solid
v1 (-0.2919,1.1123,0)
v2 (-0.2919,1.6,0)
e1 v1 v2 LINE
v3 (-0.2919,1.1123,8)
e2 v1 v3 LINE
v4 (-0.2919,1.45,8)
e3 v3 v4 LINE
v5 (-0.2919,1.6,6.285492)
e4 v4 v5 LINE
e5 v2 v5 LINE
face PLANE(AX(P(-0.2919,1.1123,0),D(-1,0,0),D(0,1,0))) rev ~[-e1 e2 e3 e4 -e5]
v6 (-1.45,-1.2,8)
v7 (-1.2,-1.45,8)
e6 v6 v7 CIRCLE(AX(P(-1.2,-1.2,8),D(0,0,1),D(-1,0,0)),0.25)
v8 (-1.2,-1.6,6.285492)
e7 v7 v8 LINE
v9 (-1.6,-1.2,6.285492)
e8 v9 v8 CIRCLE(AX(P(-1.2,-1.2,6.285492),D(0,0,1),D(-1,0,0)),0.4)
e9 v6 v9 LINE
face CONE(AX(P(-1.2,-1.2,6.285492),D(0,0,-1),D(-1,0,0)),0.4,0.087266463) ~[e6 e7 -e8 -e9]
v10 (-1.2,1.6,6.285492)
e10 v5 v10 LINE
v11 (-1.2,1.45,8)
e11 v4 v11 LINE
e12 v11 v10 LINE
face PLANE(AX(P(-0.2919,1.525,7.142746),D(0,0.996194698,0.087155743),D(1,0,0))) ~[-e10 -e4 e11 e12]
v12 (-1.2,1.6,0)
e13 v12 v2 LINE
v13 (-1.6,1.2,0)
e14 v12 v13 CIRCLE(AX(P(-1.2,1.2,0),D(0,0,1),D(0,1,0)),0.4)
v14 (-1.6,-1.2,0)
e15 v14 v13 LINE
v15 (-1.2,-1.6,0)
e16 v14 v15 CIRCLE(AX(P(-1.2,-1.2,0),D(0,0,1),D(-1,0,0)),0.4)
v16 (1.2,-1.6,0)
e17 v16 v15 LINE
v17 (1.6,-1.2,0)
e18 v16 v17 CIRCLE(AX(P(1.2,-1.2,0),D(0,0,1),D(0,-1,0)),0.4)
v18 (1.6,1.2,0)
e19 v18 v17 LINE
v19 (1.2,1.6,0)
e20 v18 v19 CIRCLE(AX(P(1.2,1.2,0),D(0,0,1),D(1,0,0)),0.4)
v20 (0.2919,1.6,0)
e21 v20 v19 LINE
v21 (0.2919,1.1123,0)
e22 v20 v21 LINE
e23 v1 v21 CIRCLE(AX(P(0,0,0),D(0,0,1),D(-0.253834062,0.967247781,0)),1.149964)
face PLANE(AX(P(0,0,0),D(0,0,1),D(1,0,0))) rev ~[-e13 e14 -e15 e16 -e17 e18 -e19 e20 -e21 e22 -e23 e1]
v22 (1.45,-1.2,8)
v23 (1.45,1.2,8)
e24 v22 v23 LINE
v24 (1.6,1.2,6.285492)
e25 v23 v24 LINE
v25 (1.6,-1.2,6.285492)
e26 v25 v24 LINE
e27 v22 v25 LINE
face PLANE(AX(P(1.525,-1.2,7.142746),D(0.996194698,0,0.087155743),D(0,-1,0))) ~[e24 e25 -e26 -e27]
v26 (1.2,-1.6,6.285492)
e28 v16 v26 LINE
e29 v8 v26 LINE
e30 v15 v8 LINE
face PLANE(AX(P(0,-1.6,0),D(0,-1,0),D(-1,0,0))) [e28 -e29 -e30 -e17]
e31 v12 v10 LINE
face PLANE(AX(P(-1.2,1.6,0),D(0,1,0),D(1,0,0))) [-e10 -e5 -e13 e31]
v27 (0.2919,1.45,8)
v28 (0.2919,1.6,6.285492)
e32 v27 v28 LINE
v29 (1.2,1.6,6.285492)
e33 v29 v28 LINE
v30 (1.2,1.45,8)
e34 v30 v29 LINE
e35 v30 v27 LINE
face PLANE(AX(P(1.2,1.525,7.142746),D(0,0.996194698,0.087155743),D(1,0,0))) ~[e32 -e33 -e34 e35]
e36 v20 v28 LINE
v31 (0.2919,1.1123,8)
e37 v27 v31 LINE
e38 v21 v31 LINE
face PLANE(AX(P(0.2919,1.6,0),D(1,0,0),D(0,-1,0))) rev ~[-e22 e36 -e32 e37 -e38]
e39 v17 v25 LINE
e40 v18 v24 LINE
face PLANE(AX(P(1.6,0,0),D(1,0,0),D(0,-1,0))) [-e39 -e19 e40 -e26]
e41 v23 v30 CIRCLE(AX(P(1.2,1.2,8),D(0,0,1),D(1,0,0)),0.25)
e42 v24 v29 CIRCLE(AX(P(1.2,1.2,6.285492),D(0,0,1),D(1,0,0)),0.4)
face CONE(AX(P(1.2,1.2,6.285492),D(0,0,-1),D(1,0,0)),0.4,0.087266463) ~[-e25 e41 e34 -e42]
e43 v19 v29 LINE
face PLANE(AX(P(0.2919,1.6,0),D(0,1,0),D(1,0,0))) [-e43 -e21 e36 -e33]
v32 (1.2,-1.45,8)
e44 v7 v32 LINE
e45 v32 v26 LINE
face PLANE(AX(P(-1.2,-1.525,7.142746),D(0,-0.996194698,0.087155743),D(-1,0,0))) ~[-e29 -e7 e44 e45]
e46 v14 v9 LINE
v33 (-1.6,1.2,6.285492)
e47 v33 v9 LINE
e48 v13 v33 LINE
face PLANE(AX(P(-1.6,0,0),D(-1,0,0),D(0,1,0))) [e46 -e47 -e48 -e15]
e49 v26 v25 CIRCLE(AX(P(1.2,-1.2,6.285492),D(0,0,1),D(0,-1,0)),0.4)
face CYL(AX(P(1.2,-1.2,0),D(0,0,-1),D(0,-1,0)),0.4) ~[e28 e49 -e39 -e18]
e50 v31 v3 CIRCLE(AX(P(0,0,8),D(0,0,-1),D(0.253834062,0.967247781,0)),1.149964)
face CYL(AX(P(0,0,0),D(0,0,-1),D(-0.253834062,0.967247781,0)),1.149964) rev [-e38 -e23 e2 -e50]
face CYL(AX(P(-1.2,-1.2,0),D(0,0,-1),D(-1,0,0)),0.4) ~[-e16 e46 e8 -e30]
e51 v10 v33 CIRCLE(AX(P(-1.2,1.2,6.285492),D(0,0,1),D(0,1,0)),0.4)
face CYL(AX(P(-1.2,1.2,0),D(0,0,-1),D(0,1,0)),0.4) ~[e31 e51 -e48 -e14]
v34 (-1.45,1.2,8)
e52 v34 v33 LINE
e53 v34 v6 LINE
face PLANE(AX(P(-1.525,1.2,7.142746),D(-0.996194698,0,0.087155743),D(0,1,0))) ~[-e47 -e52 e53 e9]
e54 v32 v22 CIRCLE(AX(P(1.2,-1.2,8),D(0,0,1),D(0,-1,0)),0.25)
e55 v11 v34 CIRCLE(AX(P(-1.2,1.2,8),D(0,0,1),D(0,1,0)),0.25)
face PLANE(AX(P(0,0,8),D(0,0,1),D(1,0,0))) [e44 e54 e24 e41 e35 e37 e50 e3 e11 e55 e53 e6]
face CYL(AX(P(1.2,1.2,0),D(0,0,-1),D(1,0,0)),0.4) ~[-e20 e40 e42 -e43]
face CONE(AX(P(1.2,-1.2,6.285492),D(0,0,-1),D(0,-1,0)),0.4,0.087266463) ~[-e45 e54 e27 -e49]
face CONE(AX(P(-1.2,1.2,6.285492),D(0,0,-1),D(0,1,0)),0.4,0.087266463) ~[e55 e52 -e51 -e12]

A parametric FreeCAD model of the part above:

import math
import FreeCAD as App
import Part
import Sketcher
from FreeCAD import Vector


def edges_at(feature, points):
    """Names of the edges that pass closest to the given points."""
    edges = feature.Shape.Edges
    near = lambda p: min(range(len(edges)), key=lambda i: edges[i].distToShape(Part.Vertex(*p))[0])
    return sorted({f"Edge{near(p) + 1}" for p in points})

doc = App.newDocument("Part")
params = doc.addObject("Spreadsheet::Sheet", "Params")
for row, (alias, value) in enumerate([
    ("sketch1_radius", "0.4 mm"),
    ("sketch1_radius2", "1.15 mm"),
    ("pad1_length", "8 mm"),
    ("chamfer_size", "0.15 mm"),
], start=1):
    params.set(f"A{row}", alias)
    params.set(f"B{row}", "=" + value)
    params.setAlias(f"B{row}", alias)

body = doc.addObject("PartDesign::Body", "Body")

# Sketch on XY plane
sketch1 = doc.addObject("Sketcher::SketchObject", "Sketch")
body.addObject(sketch1)
sketch1.AttachmentSupport = (doc.XY_Plane, [""])
sketch1.MapMode = "FlatFace"
sketch1.addGeometry([
    Part.LineSegment(Vector(-0.29, 1.6, 0), Vector(-1.2, 1.6, 0)),  # 0
    Part.ArcOfCircle(Part.Circle(Vector(-1.2, 1.2, 0), Vector(0, 0, 1), 0.4), math.radians(90), math.radians(180)),  # 1
    Part.LineSegment(Vector(-1.6, 1.2, 0), Vector(-1.6, -1.2, 0)),  # 2
    Part.ArcOfCircle(Part.Circle(Vector(-1.2, -1.2, 0), Vector(0, 0, 1), 0.4), math.radians(180), math.radians(270)),  # 3
    Part.LineSegment(Vector(-1.2, -1.6, 0), Vector(1.2, -1.6, 0)),  # 4
    Part.ArcOfCircle(Part.Circle(Vector(1.2, -1.2, 0), Vector(0, 0, 1), 0.4), math.radians(-90), math.radians(0)),  # 5
    Part.LineSegment(Vector(1.6, -1.2, 0), Vector(1.6, 1.2, 0)),  # 6
    Part.ArcOfCircle(Part.Circle(Vector(1.2, 1.2, 0), Vector(0, 0, 1), 0.4), math.radians(0), math.radians(90)),  # 7
    Part.LineSegment(Vector(1.2, 1.6, 0), Vector(0.29, 1.6, 0)),  # 8
    Part.LineSegment(Vector(0.29, 1.6, 0), Vector(0.29, 1.11, 0)),  # 9
    Part.ArcOfCircle(Part.Circle(Vector(0, 0, 0), Vector(0, 0, 1), 1.15), math.radians(105), math.radians(435)),  # 10
    Part.LineSegment(Vector(-0.29, 1.11, 0), Vector(-0.29, 1.6, 0)),  # 11
], False)
sketch1.addConstraint([
    Sketcher.Constraint("Tangent", 0, 2, 1, 1),
    Sketcher.Constraint("Tangent", 1, 2, 2, 1),
    Sketcher.Constraint("Tangent", 2, 2, 3, 1),
    Sketcher.Constraint("Tangent", 3, 2, 4, 1),
    Sketcher.Constraint("Tangent", 4, 2, 5, 1),
    Sketcher.Constraint("Tangent", 5, 2, 6, 1),
    Sketcher.Constraint("Tangent", 6, 2, 7, 1),
    Sketcher.Constraint("Tangent", 7, 2, 8, 1),
    Sketcher.Constraint("Coincident", 8, 2, 9, 1),
    Sketcher.Constraint("Coincident", 9, 2, 10, 2),
    Sketcher.Constraint("Coincident", 10, 1, 11, 1),
    Sketcher.Constraint("Coincident", 11, 2, 0, 1),
    Sketcher.Constraint("Horizontal", 0),
    Sketcher.Constraint("Vertical", 2),
    Sketcher.Constraint("Horizontal", 4),
    Sketcher.Constraint("Vertical", 6),
    Sketcher.Constraint("Horizontal", 8),
    Sketcher.Constraint("Vertical", 9),
    Sketcher.Constraint("Vertical", 11),
    Sketcher.Constraint("Coincident", 10, 3, -1, 1),
    Sketcher.Constraint("Equal", 1, 3),
    Sketcher.Constraint("Equal", 3, 5),
    Sketcher.Constraint("Equal", 5, 7),
    Sketcher.Constraint("Symmetric", 1, 3, 5, 3, -1, 1),
    Sketcher.Constraint("Symmetric", 8, 2, 11, 2, -2),
    Sketcher.Constraint("Equal", 4, 2),
    Sketcher.Constraint("Radius", 1, 0.4),
    Sketcher.Constraint("Radius", 10, 1.15),
    Sketcher.Constraint("DistanceY", -1, 1, 0, 2, 1.6),
    Sketcher.Constraint("DistanceX", 0, 2, 0, 1, 0.908),
])
sketch1.setExpression("Constraints[26]", "Params.sketch1_radius")
sketch1.setExpression("Constraints[27]", "Params.sketch1_radius2")
pad1 = doc.addObject("PartDesign::Pad", "Pad")
body.addObject(pad1)
pad1.Profile = sketch1
pad1.setExpression("Length", "Params.pad1_length")
doc.recompute()

chamfer = doc.addObject("PartDesign::Chamfer", "Chamfer")
body.addObject(chamfer)
chamfer.Base = (pad1, edges_at(pad1, [
    (1.6, 0, 8),
    (1.483, 1.483, 8),
    (0.746, 1.6, 8),
    (1.483, -1.483, 8),
    (0, -1.6, 8),
    (-1.483, -1.483, 8),
    (-1.6, 0, 8),
    (-1.483, 1.483, 8),
    (-0.746, 1.6, 8),
]))
chamfer.ChamferType = "Distance and Angle"
chamfer.setExpression("Size", "Params.chamfer_size")
chamfer.Angle = 85
chamfer.FlipDirection = True

doc.recompute()
